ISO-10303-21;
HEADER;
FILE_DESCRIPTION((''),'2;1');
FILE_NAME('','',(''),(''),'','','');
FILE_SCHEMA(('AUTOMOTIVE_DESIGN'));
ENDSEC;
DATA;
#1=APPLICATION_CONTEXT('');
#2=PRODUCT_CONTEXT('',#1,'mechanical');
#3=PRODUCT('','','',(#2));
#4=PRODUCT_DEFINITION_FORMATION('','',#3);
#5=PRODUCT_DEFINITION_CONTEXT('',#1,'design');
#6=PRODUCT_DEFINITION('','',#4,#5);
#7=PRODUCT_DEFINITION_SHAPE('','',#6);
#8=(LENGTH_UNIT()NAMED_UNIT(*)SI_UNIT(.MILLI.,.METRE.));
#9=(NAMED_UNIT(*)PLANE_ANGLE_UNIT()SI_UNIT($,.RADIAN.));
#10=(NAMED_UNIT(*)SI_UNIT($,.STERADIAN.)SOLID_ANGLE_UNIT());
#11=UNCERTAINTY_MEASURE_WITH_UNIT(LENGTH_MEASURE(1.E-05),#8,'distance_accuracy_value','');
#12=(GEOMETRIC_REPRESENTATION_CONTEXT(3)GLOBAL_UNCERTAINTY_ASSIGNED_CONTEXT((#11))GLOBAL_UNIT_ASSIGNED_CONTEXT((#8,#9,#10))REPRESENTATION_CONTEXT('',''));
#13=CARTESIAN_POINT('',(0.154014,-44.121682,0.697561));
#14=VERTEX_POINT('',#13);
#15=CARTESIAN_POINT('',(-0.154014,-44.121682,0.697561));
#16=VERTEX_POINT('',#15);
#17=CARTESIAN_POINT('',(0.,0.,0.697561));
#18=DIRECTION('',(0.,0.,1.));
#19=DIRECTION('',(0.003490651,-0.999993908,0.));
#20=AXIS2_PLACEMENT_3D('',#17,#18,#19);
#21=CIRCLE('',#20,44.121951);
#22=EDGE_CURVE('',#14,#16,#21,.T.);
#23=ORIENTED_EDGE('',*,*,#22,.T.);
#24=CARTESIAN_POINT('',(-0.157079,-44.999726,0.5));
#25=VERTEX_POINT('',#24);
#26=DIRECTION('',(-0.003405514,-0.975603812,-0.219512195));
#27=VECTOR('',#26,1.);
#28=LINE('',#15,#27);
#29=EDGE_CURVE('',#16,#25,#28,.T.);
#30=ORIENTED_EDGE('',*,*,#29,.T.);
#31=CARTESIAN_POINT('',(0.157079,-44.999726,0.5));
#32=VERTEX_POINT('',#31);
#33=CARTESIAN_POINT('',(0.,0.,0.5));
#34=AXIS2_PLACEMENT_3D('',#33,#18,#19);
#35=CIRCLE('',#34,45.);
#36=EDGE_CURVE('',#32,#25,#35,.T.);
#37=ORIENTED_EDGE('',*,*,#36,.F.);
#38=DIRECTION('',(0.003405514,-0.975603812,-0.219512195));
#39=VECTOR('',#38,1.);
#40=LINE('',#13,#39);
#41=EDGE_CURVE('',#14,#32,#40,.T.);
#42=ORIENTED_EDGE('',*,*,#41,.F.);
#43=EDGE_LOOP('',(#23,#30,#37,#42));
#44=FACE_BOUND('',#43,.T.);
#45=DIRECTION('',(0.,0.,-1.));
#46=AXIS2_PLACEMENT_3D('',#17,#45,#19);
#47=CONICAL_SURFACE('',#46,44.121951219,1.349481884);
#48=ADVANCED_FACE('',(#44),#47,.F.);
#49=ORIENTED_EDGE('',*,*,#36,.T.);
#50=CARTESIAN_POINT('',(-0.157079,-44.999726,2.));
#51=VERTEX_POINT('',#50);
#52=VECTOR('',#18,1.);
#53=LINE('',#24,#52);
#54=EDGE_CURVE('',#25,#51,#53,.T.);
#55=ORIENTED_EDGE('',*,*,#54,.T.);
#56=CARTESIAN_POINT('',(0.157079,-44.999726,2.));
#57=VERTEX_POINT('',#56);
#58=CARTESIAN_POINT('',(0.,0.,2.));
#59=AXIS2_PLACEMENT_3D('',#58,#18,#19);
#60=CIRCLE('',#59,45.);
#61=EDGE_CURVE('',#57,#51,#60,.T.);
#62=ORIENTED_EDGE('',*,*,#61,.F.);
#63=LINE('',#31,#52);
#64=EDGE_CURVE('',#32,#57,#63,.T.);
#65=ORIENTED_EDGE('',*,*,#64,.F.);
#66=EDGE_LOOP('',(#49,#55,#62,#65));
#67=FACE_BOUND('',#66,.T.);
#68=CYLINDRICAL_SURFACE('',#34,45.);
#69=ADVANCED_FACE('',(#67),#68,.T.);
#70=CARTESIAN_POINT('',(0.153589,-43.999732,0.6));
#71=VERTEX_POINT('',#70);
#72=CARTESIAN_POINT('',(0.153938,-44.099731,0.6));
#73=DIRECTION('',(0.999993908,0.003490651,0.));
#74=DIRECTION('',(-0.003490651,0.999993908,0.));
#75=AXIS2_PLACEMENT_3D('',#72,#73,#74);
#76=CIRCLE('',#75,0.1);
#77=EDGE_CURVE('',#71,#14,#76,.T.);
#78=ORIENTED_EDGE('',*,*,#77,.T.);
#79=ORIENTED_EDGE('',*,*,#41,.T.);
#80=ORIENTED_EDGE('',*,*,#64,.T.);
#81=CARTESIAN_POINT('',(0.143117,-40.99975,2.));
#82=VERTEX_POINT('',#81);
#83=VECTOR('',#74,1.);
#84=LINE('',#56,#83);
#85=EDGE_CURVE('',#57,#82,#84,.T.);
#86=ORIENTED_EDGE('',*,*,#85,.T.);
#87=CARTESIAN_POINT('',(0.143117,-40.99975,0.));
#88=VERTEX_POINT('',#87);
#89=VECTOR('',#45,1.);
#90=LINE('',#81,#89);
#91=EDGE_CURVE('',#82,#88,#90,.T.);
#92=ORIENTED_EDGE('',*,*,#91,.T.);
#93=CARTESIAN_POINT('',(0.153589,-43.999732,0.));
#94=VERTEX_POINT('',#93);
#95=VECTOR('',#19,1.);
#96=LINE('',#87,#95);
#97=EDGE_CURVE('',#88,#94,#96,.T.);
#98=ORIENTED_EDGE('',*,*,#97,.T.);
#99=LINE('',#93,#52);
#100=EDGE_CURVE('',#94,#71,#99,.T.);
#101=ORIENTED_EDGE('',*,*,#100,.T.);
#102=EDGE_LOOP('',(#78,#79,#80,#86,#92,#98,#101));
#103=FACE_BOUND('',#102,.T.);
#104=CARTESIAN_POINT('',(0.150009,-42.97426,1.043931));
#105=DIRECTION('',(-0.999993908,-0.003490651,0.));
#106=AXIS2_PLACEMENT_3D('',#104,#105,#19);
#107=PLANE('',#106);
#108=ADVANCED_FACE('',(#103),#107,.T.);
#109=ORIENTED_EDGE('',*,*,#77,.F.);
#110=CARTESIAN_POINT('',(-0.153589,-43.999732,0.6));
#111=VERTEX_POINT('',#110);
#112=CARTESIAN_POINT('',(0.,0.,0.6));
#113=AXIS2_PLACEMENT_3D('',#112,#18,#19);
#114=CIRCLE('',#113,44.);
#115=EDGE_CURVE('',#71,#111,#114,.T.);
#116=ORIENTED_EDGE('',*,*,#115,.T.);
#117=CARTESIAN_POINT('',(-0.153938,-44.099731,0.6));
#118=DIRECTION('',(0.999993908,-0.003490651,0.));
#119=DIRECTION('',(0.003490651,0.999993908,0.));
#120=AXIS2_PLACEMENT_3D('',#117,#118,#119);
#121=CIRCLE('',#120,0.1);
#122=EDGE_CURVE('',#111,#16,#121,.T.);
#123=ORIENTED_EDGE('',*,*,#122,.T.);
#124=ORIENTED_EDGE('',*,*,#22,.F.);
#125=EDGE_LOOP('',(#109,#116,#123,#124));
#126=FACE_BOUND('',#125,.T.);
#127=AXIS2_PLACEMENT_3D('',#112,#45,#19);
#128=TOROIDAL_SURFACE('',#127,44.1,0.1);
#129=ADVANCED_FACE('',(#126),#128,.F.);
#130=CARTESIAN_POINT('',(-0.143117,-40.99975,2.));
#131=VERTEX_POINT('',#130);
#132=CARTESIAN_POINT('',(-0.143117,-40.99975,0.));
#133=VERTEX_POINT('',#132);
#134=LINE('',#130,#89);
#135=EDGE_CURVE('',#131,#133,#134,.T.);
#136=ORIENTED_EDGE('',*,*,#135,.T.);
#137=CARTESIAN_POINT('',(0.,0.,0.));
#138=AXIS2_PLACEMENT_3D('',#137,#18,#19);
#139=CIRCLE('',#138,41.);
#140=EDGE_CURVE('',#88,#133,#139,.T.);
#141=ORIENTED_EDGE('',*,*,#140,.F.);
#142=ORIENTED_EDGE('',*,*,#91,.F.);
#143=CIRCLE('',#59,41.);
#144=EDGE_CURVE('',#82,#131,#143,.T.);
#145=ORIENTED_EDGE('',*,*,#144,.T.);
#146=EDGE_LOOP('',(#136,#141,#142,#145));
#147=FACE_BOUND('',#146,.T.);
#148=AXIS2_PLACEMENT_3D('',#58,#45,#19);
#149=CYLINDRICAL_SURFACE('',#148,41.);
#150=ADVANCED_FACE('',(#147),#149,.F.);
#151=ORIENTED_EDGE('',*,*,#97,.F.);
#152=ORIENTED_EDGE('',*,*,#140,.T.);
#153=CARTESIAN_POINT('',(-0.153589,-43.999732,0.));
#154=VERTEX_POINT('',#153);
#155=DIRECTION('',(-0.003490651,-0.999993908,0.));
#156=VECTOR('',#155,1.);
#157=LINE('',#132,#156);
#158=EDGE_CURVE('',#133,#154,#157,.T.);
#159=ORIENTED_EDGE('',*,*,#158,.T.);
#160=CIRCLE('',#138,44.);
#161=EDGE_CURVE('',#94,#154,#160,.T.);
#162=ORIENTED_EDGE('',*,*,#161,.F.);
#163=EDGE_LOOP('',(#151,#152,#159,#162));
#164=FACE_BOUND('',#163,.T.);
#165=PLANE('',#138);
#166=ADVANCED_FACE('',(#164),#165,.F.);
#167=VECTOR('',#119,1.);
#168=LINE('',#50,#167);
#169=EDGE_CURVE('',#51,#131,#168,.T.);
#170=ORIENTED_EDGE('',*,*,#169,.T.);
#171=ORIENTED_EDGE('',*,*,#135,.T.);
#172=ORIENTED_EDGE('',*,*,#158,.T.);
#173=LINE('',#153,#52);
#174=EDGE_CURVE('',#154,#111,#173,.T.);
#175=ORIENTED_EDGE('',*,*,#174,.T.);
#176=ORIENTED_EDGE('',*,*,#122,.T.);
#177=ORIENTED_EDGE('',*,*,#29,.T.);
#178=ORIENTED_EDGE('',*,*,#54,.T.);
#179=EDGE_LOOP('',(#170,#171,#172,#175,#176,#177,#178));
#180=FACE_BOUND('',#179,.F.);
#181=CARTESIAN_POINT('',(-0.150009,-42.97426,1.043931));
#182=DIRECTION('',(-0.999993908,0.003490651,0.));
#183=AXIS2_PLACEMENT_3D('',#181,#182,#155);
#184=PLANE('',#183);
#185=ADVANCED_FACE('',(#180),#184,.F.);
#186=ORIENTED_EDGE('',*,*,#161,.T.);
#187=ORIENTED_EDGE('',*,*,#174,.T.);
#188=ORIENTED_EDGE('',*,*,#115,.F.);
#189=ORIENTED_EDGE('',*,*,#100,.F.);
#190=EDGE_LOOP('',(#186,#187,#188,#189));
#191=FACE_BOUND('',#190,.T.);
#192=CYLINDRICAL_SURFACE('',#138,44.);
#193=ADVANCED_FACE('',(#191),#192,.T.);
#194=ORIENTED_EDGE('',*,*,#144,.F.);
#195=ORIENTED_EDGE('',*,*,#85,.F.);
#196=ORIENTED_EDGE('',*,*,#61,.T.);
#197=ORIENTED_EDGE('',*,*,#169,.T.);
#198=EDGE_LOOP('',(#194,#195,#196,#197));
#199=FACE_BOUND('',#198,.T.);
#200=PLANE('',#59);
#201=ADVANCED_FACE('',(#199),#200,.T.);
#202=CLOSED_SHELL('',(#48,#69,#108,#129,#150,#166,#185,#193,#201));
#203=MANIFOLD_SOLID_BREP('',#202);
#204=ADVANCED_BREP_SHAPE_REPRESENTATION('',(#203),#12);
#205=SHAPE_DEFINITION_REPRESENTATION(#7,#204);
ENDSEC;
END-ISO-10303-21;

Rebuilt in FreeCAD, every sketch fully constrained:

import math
import FreeCAD as App
import Part
import Sketcher

V = App.Vector
Q = App.Units.Quantity

doc = App.newDocument("Part")
params = doc.addObject("Spreadsheet::Sheet", "Params")
for row, (alias, value) in enumerate([
    ("sketch1_radius", "0.1 mm"),
    ("sketch1_width", "4 mm"),
    ("sketch1_width2", "3 mm"),
    ("sketch1_height", "2 mm"),
    ("sketch1_height2", "0.6 mm"),
    ("revolution_angle", "359.6 deg"),
], start=1):
    params.set(f"A{row}", alias)
    params.set(f"B{row}", "=" + value)
    params.setAlias(f"B{row}", alias)

body = doc.addObject("PartDesign::Body", "Body")

sketch1 = doc.addObject("Sketcher::SketchObject", "Sketch")
body.addObject(sketch1)
sketch1.Placement = App.Placement(V(0, 0, 0), App.Rotation(V(0.003490651, -0.999993908, 0), V(0, 0, 1.000000001), V(-0.999993908, -0.003490651, 0), "ZXY"))
sketch1.addGeometry([
    Part.LineSegment(V(45, 2, 0), V(41, 2, 0)),
    Part.LineSegment(V(41, 2, 0), V(41, 0, 0)),
    Part.LineSegment(V(41, 0, 0), V(44, 0, 0)),
    Part.LineSegment(V(44, 0, 0), V(44, 0.6, 0)),
    Part.ArcOfCircle(Part.Circle(V(44.1, 0.6, 0), V(0, 0, 1), 0.1), math.radians(77.319617), math.radians(180)),
    Part.LineSegment(V(44.121951, 0.697561, 0), V(45, 0.5, 0)),
    Part.LineSegment(V(45, 0.5, 0), V(45, 2, 0)),
], False)
sketch1.addConstraint([
    Sketcher.Constraint("Coincident", 0, 2, 1, 1),
    Sketcher.Constraint("Coincident", 1, 2, 2, 1),
    Sketcher.Constraint("Coincident", 2, 2, 3, 1),
    Sketcher.Constraint("Tangent", 3, 2, 4, 2),
    Sketcher.Constraint("Tangent", 4, 1, 5, 1),
    Sketcher.Constraint("Coincident", 5, 2, 6, 1),
    Sketcher.Constraint("Coincident", 6, 2, 0, 1),
    Sketcher.Constraint("Horizontal", 0),
    Sketcher.Constraint("Vertical", 1),
    Sketcher.Constraint("Horizontal", 2),
    Sketcher.Constraint("Vertical", 3),
    Sketcher.Constraint("Vertical", 6),
    Sketcher.Constraint("PointOnObject", 1, 2, -1),
    Sketcher.Constraint("Radius", 4, Q("0.1 mm")),
    Sketcher.Constraint("DistanceX", 0, 2, 0, 1, Q("4 mm")),
    Sketcher.Constraint("DistanceX", 2, 1, 2, 2, Q("3 mm")),
    Sketcher.Constraint("DistanceY", 1, 2, 1, 1, Q("2 mm")),
    Sketcher.Constraint("DistanceY", 3, 1, 3, 2, Q("0.6 mm")),
    Sketcher.Constraint("DistanceY", 6, 1, 6, 2, Q("1.5 mm")),
    Sketcher.Constraint("DistanceX", -1, 1, 0, 2, Q("41 mm")),
])
sketch1.setExpression("Constraints[13]", "Params.sketch1_radius")
sketch1.setExpression("Constraints[14]", "Params.sketch1_width")
sketch1.setExpression("Constraints[15]", "Params.sketch1_width2")
sketch1.setExpression("Constraints[16]", "Params.sketch1_height")
sketch1.setExpression("Constraints[17]", "Params.sketch1_height2")
revolution = doc.addObject("PartDesign::Revolution", "Revolution")
body.addObject(revolution)
revolution.Profile = sketch1
revolution.ReferenceAxis = (sketch1, ["V_Axis"])
revolution.setExpression("Angle", "Params.revolution_angle")

doc.recompute()
